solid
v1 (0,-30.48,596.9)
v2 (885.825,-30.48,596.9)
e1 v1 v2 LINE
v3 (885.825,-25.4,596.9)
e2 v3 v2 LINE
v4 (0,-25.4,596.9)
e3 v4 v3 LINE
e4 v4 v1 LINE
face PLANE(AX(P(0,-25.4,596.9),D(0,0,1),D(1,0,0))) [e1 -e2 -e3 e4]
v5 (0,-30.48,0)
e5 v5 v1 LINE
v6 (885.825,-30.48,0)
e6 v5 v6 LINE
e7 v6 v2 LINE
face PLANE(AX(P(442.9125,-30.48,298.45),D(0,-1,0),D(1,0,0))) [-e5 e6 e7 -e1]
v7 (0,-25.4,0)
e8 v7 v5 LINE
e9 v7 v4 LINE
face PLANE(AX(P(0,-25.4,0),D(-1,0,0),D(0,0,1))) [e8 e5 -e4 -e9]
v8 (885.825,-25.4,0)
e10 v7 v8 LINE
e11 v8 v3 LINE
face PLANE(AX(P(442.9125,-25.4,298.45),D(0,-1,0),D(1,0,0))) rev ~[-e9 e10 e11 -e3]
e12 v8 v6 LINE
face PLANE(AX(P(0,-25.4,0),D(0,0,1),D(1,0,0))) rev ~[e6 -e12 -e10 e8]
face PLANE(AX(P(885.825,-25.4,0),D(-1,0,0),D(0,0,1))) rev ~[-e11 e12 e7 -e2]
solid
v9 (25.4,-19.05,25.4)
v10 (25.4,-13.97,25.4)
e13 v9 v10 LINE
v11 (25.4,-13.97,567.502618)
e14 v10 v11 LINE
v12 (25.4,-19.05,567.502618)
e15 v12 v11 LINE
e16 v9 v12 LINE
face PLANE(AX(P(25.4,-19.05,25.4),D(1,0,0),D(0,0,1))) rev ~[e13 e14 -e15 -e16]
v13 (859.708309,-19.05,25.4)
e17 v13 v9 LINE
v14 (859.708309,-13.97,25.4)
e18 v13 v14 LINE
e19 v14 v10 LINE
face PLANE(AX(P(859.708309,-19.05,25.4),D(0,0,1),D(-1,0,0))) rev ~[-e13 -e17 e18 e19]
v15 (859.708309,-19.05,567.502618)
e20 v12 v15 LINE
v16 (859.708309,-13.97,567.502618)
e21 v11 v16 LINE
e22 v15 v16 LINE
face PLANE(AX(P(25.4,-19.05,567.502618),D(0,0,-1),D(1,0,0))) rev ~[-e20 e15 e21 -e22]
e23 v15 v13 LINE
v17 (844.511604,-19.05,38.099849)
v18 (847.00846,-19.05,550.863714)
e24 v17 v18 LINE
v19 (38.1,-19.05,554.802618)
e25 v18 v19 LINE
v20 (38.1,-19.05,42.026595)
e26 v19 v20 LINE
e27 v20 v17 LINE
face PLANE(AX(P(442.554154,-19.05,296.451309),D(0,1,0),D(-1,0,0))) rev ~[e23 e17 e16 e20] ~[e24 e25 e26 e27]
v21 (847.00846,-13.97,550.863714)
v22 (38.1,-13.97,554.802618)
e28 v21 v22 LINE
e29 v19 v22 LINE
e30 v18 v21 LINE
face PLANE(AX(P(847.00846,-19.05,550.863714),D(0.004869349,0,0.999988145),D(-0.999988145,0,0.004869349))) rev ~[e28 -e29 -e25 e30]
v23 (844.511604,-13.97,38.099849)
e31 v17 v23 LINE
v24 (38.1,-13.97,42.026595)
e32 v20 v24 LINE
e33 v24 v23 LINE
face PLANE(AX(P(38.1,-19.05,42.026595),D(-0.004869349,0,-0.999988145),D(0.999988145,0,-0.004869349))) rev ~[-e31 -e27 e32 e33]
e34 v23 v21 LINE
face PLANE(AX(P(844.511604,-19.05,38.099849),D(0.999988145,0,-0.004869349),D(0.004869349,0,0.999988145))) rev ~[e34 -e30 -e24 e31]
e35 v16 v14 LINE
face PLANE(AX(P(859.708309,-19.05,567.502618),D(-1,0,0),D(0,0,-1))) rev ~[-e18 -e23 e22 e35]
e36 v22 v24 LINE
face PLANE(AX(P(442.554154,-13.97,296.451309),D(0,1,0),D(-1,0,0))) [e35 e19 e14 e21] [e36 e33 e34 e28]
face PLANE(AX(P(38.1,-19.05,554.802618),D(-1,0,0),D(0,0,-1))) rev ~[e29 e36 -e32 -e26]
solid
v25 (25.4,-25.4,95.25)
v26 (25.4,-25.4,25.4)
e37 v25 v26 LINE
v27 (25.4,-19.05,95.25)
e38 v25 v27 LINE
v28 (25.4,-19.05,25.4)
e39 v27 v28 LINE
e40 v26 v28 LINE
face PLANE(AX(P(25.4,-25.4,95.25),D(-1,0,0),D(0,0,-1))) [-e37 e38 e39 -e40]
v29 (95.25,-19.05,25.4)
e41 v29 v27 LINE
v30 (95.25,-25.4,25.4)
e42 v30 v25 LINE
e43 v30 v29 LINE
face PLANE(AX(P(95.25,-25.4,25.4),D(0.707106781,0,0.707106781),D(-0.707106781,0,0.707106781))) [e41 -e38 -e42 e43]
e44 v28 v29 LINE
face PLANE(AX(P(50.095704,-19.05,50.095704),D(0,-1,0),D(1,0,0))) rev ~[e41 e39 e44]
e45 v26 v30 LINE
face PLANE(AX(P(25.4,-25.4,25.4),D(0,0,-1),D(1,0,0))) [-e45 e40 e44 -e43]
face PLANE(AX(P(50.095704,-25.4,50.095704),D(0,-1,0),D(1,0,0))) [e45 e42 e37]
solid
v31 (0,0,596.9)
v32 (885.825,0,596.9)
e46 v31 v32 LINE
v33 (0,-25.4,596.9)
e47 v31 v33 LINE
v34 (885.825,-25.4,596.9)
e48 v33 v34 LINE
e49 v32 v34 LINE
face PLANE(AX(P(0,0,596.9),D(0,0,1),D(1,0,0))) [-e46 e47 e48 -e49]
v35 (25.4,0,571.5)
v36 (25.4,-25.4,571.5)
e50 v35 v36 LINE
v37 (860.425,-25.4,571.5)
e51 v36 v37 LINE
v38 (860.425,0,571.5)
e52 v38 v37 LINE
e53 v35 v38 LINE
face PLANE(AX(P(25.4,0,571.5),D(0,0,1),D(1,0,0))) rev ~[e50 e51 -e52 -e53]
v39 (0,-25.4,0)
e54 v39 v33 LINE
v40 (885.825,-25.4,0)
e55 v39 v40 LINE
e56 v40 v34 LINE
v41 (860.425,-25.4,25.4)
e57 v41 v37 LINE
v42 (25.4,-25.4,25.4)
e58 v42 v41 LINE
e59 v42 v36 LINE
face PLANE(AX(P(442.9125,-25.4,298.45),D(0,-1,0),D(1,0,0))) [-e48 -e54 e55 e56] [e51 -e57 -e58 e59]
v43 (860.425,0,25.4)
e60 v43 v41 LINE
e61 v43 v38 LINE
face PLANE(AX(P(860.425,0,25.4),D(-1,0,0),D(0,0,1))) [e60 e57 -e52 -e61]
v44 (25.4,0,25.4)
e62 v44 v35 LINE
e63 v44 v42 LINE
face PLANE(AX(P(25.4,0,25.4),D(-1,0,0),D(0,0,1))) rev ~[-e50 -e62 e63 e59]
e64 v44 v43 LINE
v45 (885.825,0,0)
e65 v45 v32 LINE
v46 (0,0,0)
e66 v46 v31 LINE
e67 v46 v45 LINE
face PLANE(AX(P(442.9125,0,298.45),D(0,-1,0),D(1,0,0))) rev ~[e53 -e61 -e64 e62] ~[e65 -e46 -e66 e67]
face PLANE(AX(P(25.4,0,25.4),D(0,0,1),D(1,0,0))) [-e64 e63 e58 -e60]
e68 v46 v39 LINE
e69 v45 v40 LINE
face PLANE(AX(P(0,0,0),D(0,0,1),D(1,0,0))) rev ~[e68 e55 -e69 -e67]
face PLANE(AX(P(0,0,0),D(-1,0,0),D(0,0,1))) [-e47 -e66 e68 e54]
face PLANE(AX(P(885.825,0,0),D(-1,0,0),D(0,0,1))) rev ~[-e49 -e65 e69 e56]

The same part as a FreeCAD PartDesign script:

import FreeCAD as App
import Part
import Sketcher

V = App.Vector
Q = App.Units.Quantity


def add_polygon(sketch, points):
    """Adds a closed chain of lines whose ends are joined by coincident constraints."""
    first, n = sketch.GeometryCount, len(points)
    for a, b in zip(points, points[1:] + points[:1]):
        sketch.addGeometry(Part.LineSegment(App.Vector(*a, 0), App.Vector(*b, 0)), False)
    for i in range(n):
        sketch.addConstraint(Sketcher.Constraint("Coincident", first + i, 2, first + (i + 1) % n, 1))

doc = App.newDocument("Part")
params = doc.addObject("Spreadsheet::Sheet", "Params")
for row, (alias, value) in enumerate([
    ("sketch1_height", "23.5 in"),
    ("sketch1_height2", "21.5 in"),
    ("sketch1_width", "34.875 in"),
    ("pad1_length", "1 in"),
    ("sketch2_width", "2.75 in"),
    ("pad2_length", "0.25 in"),
    ("sketch3_height", "23.5 in"),
    ("sketch3_width", "34.875 in"),
    ("pad3_length", "0.2 in"),
    ("pad4_length", "0.2 in"),
], start=1):
    params.set(f"A{row}", alias)
    params.set(f"B{row}", "=" + value)
    params.setAlias(f"B{row}", alias)

body = doc.addObject("PartDesign::Body", "Body")

# Sketch on XZ plane
sketch1 = body.newObject("Sketcher::SketchObject", "Sketch")
sketch1.AttachmentSupport = (doc.getObject("XZ_Plane"), [""])
sketch1.MapMode = "FlatFace"
add_polygon(sketch1, [(0, 597), (0, 0), (886, 0), (886, 597)])  # lines 0-3
add_polygon(sketch1, [(860, 25), (25, 25), (25, 572), (860, 572)])  # lines 4-7
sketch1.addConstraint([
    Sketcher.Constraint("Vertical", 0),
    Sketcher.Constraint("Horizontal", 1),
    Sketcher.Constraint("Vertical", 2),
    Sketcher.Constraint("Horizontal", 3),
    Sketcher.Constraint("Horizontal", 4),
    Sketcher.Constraint("Vertical", 5),
    Sketcher.Constraint("Horizontal", 6),
    Sketcher.Constraint("Vertical", 7),
    Sketcher.Constraint("Coincident", 0, 2, -1, 1),
    Sketcher.Constraint("DistanceY", 0, 2, 0, 1, Q("23.5 in")),
    Sketcher.Constraint("DistanceY", 5, 1, 5, 2, Q("21.5 in")),
    Sketcher.Constraint("DistanceX", -1, 1, 4, 2, Q("1 in")),
    Sketcher.Constraint("DistanceY", -1, 1, 4, 2, Q("1 in")),
    Sketcher.Constraint("DistanceX", 6, 2, 2, 2, Q("1 in")),
    Sketcher.Constraint("DistanceX", 1, 1, 1, 2, Q("34.875 in")),
])
sketch1.setExpression("Constraints[17]", "Params.sketch1_height")
sketch1.setExpression("Constraints[18]", "Params.sketch1_height2")
sketch1.setExpression("Constraints[22]", "Params.sketch1_width")
pad1 = body.newObject("PartDesign::Pad", "Pad")
pad1.Profile = sketch1
pad1.setExpression("Length", "Params.pad1_length")
body2 = doc.addObject("PartDesign::Body", "Body001")

# Sketch on XZ plane
sketch2 = body2.newObject("Sketcher::SketchObject", "Sketch001")
sketch2.AttachmentSupport = (doc.getObject("XZ_Plane001"), [""])
sketch2.MapMode = "FlatFace"
sketch2.AttachmentOffset = App.Placement(V(0, 0, 1 * 25.4), App.Rotation())
add_polygon(sketch2, [(25, 95), (25, 25), (95, 25)])  # lines 0-2
sketch2.addConstraint([
    Sketcher.Constraint("Vertical", 0),
    Sketcher.Constraint("Horizontal", 1),
    Sketcher.Constraint("Equal", 1, 0),
    Sketcher.Constraint("DistanceX", -1, 1, 0, 2, Q("1 in")),
    Sketcher.Constraint("DistanceY", -1, 1, 0, 2, Q("1 in")),
    Sketcher.Constraint("DistanceX", 1, 1, 1, 2, Q("2.75 in")),
])
sketch2.setExpression("Constraints[8]", "Params.sketch2_width")
pad2 = body2.newObject("PartDesign::Pad", "Pad001")
pad2.Profile = sketch2
pad2.setExpression("Length", "Params.pad2_length")
pad2.Reversed = True
body3 = doc.addObject("PartDesign::Body", "Body002")

# Sketch on XZ plane
sketch3 = body3.newObject("Sketcher::SketchObject", "Sketch002")
sketch3.AttachmentSupport = (doc.getObject("XZ_Plane002"), [""])
sketch3.MapMode = "FlatFace"
sketch3.AttachmentOffset = App.Placement(V(0, 0, 1 * 25.4), App.Rotation())
add_polygon(sketch3, [(0, 597), (0, 0), (886, 0), (886, 597)])  # lines 0-3
sketch3.addConstraint([
    Sketcher.Constraint("Vertical", 0),
    Sketcher.Constraint("Horizontal", 1),
    Sketcher.Constraint("Vertical", 2),
    Sketcher.Constraint("Horizontal", 3),
    Sketcher.Constraint("Coincident", 0, 2, -1, 1),
    Sketcher.Constraint("DistanceY", 0, 2, 0, 1, Q("23.5 in")),
    Sketcher.Constraint("DistanceX", 1, 1, 1, 2, Q("34.875 in")),
])
sketch3.setExpression("Constraints[9]", "Params.sketch3_height")
sketch3.setExpression("Constraints[10]", "Params.sketch3_width")
pad3 = body3.newObject("PartDesign::Pad", "Pad002")
pad3.Profile = sketch3
pad3.setExpression("Length", "Params.pad3_length")
body4 = doc.addObject("PartDesign::Body", "Body003")

# Sketch on XZ plane
sketch4 = body4.newObject("Sketcher::SketchObject", "Sketch003")
sketch4.AttachmentSupport = (doc.getObject("XZ_Plane003"), [""])
sketch4.MapMode = "FlatFace"
sketch4.AttachmentOffset = App.Placement(V(0, 0, 0.75 * 25.4), App.Rotation())
add_polygon(sketch4, [(25, 25), (25, 568), (860, 568), (860, 25)])  # lines 0-3
add_polygon(sketch4, [(847, 551), (38, 555), (38, 42), (845, 38)])  # lines 4-7
sketch4.addConstraint([
    Sketcher.Constraint("Vertical", 0),
    Sketcher.Constraint("Horizontal", 1),
    Sketcher.Constraint("Vertical", 2),
    Sketcher.Constraint("Horizontal", 3),
    Sketcher.Constraint("Vertical", 5),
    Sketcher.Constraint("Parallel", 4, 6),
    Sketcher.Constraint("Perpendicular", 6, 7),
    Sketcher.Constraint("DistanceX", -1, 1, 0, 2, Q("1 in")),
    Sketcher.Constraint("DistanceY", -1, 1, 2, 2, Q("1 in")),
    Sketcher.Constraint("DistanceX", -1, 1, 4, 2, Q("1.5 in")),
    Sketcher.Constraint("DistanceY", 4, 2, 0, 2, Q("0.5 in")),
    Sketcher.Constraint("DistanceX", 1, 1, 1, 2, Q("834.308309 mm")),
    Sketcher.Constraint("DistanceY", 0, 1, 0, 2, Q("542.102618 mm")),
    Sketcher.Constraint("Distance", 4, Q("808.91805 mm")),
    Sketcher.Constraint("DistanceY", 5, 2, 5, 1, Q("512.776023 mm")),
    Sketcher.Constraint("DistanceY", -1, 1, 6, 2, Q("38.099849 mm")),
])
pad4 = body4.newObject("PartDesign::Pad", "Pad003")
pad4.Profile = sketch4
pad4.setExpression("Length", "Params.pad4_length")
pad4.Reversed = True

doc.recompute()
